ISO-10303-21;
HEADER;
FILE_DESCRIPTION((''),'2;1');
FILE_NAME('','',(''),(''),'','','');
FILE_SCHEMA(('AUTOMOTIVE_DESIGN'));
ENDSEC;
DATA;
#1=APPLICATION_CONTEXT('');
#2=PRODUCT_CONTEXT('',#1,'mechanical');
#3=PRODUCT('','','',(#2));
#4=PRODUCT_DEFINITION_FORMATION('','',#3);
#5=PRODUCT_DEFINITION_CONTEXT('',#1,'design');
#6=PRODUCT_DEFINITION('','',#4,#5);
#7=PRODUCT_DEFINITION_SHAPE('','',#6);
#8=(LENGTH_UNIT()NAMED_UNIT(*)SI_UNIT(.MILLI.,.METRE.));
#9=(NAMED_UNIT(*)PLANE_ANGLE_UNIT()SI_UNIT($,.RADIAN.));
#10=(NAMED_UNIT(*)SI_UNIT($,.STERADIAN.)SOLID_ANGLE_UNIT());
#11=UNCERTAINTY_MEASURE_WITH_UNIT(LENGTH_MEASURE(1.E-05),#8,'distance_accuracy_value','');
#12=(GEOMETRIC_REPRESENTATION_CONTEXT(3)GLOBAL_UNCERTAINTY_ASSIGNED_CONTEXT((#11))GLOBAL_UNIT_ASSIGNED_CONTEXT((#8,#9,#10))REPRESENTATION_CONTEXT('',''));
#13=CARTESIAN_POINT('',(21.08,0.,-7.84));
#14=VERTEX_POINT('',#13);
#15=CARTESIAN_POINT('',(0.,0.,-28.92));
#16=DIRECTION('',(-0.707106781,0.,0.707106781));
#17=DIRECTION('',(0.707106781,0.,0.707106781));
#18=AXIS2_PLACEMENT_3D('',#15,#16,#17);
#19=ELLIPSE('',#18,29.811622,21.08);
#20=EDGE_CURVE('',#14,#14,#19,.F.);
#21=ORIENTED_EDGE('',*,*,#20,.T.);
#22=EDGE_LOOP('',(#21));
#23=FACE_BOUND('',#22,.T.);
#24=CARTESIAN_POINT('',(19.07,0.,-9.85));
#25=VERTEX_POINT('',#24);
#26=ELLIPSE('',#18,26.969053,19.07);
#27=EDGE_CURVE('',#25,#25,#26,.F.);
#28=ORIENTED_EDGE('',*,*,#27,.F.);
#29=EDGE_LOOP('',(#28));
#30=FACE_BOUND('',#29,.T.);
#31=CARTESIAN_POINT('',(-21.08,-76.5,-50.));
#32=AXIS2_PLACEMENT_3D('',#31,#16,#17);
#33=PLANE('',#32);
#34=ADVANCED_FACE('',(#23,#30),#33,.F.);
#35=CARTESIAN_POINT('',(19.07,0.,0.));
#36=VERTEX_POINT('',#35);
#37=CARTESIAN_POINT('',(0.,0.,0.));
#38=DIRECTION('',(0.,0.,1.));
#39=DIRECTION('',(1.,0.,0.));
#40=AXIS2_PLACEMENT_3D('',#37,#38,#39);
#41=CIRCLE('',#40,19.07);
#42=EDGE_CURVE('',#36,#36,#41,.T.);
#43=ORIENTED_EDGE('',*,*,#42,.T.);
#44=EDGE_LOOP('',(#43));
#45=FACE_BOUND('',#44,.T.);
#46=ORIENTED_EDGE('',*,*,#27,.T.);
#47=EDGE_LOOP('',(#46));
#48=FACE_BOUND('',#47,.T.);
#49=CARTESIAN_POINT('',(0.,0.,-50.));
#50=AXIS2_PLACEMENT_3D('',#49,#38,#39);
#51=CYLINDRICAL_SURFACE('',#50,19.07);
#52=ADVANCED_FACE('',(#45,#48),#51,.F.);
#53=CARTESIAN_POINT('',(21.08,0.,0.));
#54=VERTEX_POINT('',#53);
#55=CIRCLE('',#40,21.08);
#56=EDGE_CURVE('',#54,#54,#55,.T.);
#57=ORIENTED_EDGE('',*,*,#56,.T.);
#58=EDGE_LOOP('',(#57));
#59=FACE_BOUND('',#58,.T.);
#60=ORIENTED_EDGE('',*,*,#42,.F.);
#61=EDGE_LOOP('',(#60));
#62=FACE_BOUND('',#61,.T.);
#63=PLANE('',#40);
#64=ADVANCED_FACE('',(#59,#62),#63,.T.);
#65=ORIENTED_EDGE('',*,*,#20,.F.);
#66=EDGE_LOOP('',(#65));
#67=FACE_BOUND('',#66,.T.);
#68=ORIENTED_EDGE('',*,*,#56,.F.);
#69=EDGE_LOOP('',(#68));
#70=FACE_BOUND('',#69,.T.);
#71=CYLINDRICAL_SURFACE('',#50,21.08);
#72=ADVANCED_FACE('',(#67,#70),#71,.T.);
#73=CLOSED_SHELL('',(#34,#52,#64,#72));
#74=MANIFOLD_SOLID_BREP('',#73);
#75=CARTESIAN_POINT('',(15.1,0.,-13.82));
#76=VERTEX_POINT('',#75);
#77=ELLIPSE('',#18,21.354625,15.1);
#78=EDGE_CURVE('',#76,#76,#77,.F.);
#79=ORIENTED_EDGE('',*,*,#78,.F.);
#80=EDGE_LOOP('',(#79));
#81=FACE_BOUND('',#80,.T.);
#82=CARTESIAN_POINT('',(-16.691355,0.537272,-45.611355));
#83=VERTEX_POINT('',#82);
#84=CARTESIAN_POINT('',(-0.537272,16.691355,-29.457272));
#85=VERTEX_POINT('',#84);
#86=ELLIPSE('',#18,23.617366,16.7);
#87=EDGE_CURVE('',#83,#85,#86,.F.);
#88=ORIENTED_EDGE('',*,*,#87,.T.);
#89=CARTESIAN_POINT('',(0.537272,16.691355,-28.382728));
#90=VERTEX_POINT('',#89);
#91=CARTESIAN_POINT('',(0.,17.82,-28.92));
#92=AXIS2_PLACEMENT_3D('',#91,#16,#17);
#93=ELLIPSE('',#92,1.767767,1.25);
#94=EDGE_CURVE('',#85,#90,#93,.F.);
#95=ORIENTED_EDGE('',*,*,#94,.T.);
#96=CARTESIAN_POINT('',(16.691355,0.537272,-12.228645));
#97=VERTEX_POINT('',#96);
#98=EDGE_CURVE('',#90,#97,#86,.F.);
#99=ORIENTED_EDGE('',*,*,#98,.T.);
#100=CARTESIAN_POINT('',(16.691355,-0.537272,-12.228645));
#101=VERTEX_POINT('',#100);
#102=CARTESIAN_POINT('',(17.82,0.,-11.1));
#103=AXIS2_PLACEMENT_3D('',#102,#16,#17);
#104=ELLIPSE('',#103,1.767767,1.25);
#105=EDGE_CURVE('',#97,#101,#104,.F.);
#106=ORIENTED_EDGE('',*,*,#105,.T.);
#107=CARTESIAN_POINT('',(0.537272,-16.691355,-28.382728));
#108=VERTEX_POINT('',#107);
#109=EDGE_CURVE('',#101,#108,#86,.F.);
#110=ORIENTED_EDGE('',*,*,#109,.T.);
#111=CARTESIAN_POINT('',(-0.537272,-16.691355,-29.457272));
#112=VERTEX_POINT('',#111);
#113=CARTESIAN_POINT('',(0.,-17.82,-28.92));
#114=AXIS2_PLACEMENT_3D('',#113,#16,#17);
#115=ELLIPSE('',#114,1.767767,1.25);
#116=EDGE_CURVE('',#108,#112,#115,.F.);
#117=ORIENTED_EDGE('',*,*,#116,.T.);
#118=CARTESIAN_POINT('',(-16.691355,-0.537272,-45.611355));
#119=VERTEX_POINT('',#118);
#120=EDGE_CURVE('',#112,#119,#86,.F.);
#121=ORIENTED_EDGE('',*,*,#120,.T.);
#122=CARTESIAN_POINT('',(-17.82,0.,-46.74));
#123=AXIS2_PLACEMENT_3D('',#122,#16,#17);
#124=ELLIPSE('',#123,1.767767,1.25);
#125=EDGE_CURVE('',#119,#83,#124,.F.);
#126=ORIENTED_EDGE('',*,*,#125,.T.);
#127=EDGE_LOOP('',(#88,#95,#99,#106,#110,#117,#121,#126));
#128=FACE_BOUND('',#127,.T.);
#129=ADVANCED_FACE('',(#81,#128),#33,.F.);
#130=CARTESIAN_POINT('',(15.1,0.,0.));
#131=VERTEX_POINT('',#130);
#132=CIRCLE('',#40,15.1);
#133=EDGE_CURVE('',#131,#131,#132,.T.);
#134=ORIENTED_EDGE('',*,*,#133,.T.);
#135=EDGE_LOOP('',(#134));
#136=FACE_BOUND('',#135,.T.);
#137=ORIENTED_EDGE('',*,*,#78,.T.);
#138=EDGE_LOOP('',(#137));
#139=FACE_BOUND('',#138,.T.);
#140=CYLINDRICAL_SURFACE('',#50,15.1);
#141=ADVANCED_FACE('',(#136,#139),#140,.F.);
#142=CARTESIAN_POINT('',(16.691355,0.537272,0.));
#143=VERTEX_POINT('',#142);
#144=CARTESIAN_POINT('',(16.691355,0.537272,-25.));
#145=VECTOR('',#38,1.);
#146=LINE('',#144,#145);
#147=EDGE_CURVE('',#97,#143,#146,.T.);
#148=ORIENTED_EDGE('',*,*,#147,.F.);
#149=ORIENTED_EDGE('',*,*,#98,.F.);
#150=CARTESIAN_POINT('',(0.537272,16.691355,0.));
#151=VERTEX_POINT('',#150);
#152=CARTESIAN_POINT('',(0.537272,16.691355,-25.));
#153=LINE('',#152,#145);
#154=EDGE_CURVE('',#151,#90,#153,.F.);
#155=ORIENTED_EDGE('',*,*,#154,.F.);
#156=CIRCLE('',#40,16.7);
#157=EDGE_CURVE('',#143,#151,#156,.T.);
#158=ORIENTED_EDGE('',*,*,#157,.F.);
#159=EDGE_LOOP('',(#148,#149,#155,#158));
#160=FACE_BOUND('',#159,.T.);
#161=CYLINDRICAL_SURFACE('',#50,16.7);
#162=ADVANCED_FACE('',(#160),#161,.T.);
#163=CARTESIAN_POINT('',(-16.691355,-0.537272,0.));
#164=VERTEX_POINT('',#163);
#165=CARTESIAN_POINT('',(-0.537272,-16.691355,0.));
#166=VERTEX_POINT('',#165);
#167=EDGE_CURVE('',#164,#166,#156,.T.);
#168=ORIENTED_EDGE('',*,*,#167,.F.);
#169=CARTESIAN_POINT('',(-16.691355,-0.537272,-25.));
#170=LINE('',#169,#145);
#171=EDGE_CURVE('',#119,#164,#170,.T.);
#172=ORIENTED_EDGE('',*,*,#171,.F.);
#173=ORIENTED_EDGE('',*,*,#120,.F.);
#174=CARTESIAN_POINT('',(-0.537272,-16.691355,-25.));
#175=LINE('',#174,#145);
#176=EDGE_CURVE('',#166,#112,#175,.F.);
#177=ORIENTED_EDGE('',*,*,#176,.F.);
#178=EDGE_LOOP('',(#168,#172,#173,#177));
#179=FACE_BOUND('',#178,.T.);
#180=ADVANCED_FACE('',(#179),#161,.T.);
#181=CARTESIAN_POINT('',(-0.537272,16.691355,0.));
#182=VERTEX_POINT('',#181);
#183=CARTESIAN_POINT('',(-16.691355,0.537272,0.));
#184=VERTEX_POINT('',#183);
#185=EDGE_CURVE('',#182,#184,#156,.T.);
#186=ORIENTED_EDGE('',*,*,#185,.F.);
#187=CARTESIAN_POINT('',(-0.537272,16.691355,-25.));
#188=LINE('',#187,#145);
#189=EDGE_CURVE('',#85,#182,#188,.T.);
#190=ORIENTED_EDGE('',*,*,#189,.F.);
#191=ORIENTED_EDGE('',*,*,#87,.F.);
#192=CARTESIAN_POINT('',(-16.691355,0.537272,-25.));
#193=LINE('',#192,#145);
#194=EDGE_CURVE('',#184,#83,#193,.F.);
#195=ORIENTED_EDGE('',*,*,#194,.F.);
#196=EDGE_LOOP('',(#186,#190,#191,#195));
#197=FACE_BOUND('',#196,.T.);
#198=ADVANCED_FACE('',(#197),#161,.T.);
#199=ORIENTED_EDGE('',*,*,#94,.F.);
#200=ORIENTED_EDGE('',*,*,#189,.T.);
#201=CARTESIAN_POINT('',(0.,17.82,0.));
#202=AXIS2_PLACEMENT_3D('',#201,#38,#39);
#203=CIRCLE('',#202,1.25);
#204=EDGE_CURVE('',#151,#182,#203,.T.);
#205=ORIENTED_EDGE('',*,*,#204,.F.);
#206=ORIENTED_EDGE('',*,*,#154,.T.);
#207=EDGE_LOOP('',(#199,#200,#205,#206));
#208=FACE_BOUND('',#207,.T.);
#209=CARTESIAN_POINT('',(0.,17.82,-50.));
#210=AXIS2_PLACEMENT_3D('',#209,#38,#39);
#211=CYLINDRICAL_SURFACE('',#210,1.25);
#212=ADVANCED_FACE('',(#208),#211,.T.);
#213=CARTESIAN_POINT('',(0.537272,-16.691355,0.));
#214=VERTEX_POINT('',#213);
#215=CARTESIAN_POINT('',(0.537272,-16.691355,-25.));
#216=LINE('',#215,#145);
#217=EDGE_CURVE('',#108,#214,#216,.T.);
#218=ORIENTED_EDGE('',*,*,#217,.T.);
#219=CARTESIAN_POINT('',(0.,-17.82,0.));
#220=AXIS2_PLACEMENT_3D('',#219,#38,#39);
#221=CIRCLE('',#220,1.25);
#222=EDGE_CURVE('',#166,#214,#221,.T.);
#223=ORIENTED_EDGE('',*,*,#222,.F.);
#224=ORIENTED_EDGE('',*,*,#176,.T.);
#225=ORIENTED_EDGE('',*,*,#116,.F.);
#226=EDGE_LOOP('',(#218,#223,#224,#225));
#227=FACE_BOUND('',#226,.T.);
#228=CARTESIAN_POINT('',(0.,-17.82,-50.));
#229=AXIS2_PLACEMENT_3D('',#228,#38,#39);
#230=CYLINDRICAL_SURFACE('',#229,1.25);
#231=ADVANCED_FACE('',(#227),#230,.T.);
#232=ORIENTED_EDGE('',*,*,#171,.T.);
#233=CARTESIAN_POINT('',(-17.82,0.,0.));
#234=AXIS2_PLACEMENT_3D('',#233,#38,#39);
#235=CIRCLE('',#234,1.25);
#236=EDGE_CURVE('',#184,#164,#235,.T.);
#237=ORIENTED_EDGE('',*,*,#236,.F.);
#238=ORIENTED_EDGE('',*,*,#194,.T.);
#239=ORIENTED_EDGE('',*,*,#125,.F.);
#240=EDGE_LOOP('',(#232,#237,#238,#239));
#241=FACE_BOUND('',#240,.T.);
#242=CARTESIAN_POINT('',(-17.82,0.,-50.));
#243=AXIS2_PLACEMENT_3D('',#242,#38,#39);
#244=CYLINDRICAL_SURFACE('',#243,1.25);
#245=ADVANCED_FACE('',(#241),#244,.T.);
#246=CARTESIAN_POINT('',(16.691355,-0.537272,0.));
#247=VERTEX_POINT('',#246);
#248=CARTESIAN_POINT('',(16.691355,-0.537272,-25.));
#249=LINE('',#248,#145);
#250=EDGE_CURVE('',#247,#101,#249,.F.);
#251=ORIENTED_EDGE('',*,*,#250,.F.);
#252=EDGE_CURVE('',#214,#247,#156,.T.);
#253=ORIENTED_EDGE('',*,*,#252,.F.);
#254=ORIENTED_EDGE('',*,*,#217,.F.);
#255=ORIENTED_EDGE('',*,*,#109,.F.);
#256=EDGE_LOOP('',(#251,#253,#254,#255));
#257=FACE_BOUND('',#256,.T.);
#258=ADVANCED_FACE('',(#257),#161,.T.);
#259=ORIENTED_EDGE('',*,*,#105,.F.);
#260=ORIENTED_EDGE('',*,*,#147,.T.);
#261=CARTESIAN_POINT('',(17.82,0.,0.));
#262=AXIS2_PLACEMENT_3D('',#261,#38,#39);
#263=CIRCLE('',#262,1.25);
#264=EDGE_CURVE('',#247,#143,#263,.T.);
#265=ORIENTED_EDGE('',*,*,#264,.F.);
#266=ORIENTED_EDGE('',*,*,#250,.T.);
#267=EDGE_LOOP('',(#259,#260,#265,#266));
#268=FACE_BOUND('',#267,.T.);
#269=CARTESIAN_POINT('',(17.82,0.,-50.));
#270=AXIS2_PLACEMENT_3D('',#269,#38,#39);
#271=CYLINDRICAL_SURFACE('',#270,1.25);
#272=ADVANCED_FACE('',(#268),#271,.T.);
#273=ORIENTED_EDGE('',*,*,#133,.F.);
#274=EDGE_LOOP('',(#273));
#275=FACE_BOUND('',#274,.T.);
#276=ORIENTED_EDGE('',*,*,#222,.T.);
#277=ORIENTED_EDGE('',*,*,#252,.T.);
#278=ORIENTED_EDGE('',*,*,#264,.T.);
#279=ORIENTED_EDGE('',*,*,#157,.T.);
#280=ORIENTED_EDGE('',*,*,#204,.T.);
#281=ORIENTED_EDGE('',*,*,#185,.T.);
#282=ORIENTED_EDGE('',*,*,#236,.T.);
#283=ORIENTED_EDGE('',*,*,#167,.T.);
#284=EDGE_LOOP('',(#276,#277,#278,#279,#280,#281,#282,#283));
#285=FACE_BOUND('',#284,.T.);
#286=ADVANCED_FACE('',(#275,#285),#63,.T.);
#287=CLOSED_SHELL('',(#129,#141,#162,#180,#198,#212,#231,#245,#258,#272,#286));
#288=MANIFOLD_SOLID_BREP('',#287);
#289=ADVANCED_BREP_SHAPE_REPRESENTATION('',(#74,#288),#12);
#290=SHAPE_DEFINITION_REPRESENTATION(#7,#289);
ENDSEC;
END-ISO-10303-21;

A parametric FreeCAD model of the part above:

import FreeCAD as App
import Part
import Sketcher
Q = App.Units.Quantity

doc = App.newDocument("Part")
params = doc.addObject("Spreadsheet::Sheet", "Params")
for row, (alias, value) in enumerate([
    ("sketch1_diameter", "42.16 mm"),
    ("sketch1_diameter2", "38.14 mm"),
    ("pad1_length", "50 mm"),
    ("sketch2_diameter", "33.4 mm"),
    ("sketch2_diameter2", "30.2 mm"),
    ("pad2_length", "50 mm"),
    ("sketch3_diameter", "2.5 mm"),
    ("pad3_length", "50 mm"),
    ("sketch4_width", "42.16 mm"),
    ("pad4_length", "153 mm"),
], start=1):
    params.set(f"A{row}", alias)
    params.set(f"B{row}", "=" + value)
    params.setAlias(f"B{row}", alias)

body = doc.addObject("PartDesign::Body", "Body")

sketch1 = body.newObject("Sketcher::SketchObject", "Sketch")
sketch1.AttachmentSupport = (doc.getObject("XY_Plane"), [""])
sketch1.MapMode = "FlatFace"
sketch1.addGeometry(Part.Circle(App.Vector(0, 0, 0), App.Vector(0, 0, 1), 21.08), False)
sketch1.addGeometry(Part.Circle(App.Vector(0, 0, 0), App.Vector(0, 0, 1), 19.07), False)
sketch1.addConstraint(Sketcher.Constraint("Coincident", 0, 3, -1, 1))
sketch1.addConstraint(Sketcher.Constraint("Coincident", 1, 3, -1, 1))
sketch1.addConstraint(Sketcher.Constraint("Diameter", 0, Q("42.16 mm")))
sketch1.addConstraint(Sketcher.Constraint("Diameter", 1, Q("38.14 mm")))
sketch1.setExpression("Constraints[2]", "Params.sketch1_diameter")
sketch1.setExpression("Constraints[3]", "Params.sketch1_diameter2")
pad1 = body.newObject("PartDesign::Pad", "Pad")
pad1.Profile = sketch1
pad1.setExpression("Length", "Params.pad1_length")
pad1.Reversed = True
body2 = doc.addObject("PartDesign::Body", "Body001")

sketch2 = body2.newObject("Sketcher::SketchObject", "Sketch001")
sketch2.AttachmentSupport = (doc.getObject("XY_Plane001"), [""])
sketch2.MapMode = "FlatFace"
sketch2.addGeometry(Part.Circle(App.Vector(0, 0, 0), App.Vector(0, 0, 1), 16.7), False)
sketch2.addGeometry(Part.Circle(App.Vector(0, 0, 0), App.Vector(0, 0, 1), 15.1), False)
sketch2.addConstraint(Sketcher.Constraint("Coincident", 0, 3, -1, 1))
sketch2.addConstraint(Sketcher.Constraint("Coincident", 1, 3, -1, 1))
sketch2.addConstraint(Sketcher.Constraint("Diameter", 0, Q("33.4 mm")))
sketch2.addConstraint(Sketcher.Constraint("Diameter", 1, Q("30.2 mm")))
sketch2.setExpression("Constraints[2]", "Params.sketch2_diameter")
sketch2.setExpression("Constraints[3]", "Params.sketch2_diameter2")
pad2 = body2.newObject("PartDesign::Pad", "Pad001")
pad2.Profile = sketch2
pad2.setExpression("Length", "Params.pad2_length")
pad2.Reversed = True

sketch3 = body2.newObject("Sketcher::SketchObject", "Sketch002")
sketch3.AttachmentSupport = (doc.getObject("XY_Plane001"), [""])
sketch3.MapMode = "FlatFace"
sketch3.addGeometry(Part.Circle(App.Vector(0, -17.82, 0), App.Vector(0, 0, 1), 1.25), False)
sketch3.addGeometry(Part.Circle(App.Vector(-17.82, 0, 0), App.Vector(0, 0, 1), 1.25), False)
sketch3.addGeometry(Part.Circle(App.Vector(0, 17.82, 0), App.Vector(0, 0, 1), 1.25), False)
sketch3.addGeometry(Part.Circle(App.Vector(17.82, 0, 0), App.Vector(0, 0, 1), 1.25), False)
sketch3.addConstraint(Sketcher.Constraint("Equal", 0, 1))
sketch3.addConstraint(Sketcher.Constraint("Equal", 1, 2))
sketch3.addConstraint(Sketcher.Constraint("Equal", 2, 3))
sketch3.addConstraint(Sketcher.Constraint("Symmetric", 0, 3, 2, 3, -1, 1))
sketch3.addConstraint(Sketcher.Constraint("Symmetric", 1, 3, 3, 3, -1, 1))
sketch3.addConstraint(Sketcher.Constraint("PointOnObject", 0, 3, -2))
sketch3.addConstraint(Sketcher.Constraint("PointOnObject", 1, 3, -1))
sketch3.addConstraint(Sketcher.Constraint("Diameter", 0, Q("2.5 mm")))
sketch3.addConstraint(Sketcher.Constraint("DistanceY", 0, 3, -1, 1, Q("17.82 mm")))
sketch3.addConstraint(Sketcher.Constraint("DistanceX", 1, 3, -1, 1, Q("17.82 mm")))
sketch3.setExpression("Constraints[7]", "Params.sketch3_diameter")
pad3 = body2.newObject("PartDesign::Pad", "Pad002")
pad3.Profile = sketch3
pad3.setExpression("Length", "Params.pad3_length")
pad3.Reversed = True
body3 = doc.addObject("PartDesign::Body", "Body002")

sketch4 = body3.newObject("Sketcher::SketchObject", "Sketch003")
sketch4.AttachmentSupport = (doc.getObject("XZ_Plane002"), [""])
sketch4.MapMode = "FlatFace"
sketch4.addGeometry(Part.LineSegment(App.Vector(-21.08, -50, 0), App.Vector(21.08, -7.84, 0)), False)
sketch4.addGeometry(Part.LineSegment(App.Vector(21.08, -7.84, 0), App.Vector(21.08, -50, 0)), False)
sketch4.addGeometry(Part.LineSegment(App.Vector(21.08, -50, 0), App.Vector(-21.08, -50, 0)), False)
sketch4.addConstraint(Sketcher.Constraint("Coincident", 0, 2, 1, 1))
sketch4.addConstraint(Sketcher.Constraint("Coincident", 1, 2, 2, 1))
sketch4.addConstraint(Sketcher.Constraint("Coincident", 2, 2, 0, 1))
sketch4.addConstraint(Sketcher.Constraint("Vertical", 1))
sketch4.addConstraint(Sketcher.Constraint("Horizontal", 2))
sketch4.addConstraint(Sketcher.Constraint("Equal", 2, 1))
sketch4.addConstraint(Sketcher.Constraint("DistanceY", 1, 2, -1, 1, Q("50 mm")))
sketch4.addConstraint(Sketcher.Constraint("DistanceX", 2, 2, 2, 1, Q("42.16 mm")))
sketch4.addConstraint(Sketcher.Constraint("DistanceX", -1, 1, 0, 2, Q("21.08 mm")))
sketch4.setExpression("Constraints[7]", "Params.sketch4_width")
pad4 = body3.newObject("PartDesign::Pad", "Pad003")
pad4.Profile = sketch4
pad4.setExpression("Length", "Params.pad4_length")
pad4.Midplane = True
doc.recompute()

body4 = doc.addObject("PartDesign::Body", "Body003")
body4.BaseFeature = body3
boolean = body.newObject("PartDesign::Boolean", "Boolean")
boolean.Type = "Cut"
boolean.addObjects([body4])
doc.recompute()

boolean2 = body2.newObject("PartDesign::Boolean", "Boolean001")
boolean2.Type = "Cut"
boolean2.addObjects([body3])

doc.recompute()
